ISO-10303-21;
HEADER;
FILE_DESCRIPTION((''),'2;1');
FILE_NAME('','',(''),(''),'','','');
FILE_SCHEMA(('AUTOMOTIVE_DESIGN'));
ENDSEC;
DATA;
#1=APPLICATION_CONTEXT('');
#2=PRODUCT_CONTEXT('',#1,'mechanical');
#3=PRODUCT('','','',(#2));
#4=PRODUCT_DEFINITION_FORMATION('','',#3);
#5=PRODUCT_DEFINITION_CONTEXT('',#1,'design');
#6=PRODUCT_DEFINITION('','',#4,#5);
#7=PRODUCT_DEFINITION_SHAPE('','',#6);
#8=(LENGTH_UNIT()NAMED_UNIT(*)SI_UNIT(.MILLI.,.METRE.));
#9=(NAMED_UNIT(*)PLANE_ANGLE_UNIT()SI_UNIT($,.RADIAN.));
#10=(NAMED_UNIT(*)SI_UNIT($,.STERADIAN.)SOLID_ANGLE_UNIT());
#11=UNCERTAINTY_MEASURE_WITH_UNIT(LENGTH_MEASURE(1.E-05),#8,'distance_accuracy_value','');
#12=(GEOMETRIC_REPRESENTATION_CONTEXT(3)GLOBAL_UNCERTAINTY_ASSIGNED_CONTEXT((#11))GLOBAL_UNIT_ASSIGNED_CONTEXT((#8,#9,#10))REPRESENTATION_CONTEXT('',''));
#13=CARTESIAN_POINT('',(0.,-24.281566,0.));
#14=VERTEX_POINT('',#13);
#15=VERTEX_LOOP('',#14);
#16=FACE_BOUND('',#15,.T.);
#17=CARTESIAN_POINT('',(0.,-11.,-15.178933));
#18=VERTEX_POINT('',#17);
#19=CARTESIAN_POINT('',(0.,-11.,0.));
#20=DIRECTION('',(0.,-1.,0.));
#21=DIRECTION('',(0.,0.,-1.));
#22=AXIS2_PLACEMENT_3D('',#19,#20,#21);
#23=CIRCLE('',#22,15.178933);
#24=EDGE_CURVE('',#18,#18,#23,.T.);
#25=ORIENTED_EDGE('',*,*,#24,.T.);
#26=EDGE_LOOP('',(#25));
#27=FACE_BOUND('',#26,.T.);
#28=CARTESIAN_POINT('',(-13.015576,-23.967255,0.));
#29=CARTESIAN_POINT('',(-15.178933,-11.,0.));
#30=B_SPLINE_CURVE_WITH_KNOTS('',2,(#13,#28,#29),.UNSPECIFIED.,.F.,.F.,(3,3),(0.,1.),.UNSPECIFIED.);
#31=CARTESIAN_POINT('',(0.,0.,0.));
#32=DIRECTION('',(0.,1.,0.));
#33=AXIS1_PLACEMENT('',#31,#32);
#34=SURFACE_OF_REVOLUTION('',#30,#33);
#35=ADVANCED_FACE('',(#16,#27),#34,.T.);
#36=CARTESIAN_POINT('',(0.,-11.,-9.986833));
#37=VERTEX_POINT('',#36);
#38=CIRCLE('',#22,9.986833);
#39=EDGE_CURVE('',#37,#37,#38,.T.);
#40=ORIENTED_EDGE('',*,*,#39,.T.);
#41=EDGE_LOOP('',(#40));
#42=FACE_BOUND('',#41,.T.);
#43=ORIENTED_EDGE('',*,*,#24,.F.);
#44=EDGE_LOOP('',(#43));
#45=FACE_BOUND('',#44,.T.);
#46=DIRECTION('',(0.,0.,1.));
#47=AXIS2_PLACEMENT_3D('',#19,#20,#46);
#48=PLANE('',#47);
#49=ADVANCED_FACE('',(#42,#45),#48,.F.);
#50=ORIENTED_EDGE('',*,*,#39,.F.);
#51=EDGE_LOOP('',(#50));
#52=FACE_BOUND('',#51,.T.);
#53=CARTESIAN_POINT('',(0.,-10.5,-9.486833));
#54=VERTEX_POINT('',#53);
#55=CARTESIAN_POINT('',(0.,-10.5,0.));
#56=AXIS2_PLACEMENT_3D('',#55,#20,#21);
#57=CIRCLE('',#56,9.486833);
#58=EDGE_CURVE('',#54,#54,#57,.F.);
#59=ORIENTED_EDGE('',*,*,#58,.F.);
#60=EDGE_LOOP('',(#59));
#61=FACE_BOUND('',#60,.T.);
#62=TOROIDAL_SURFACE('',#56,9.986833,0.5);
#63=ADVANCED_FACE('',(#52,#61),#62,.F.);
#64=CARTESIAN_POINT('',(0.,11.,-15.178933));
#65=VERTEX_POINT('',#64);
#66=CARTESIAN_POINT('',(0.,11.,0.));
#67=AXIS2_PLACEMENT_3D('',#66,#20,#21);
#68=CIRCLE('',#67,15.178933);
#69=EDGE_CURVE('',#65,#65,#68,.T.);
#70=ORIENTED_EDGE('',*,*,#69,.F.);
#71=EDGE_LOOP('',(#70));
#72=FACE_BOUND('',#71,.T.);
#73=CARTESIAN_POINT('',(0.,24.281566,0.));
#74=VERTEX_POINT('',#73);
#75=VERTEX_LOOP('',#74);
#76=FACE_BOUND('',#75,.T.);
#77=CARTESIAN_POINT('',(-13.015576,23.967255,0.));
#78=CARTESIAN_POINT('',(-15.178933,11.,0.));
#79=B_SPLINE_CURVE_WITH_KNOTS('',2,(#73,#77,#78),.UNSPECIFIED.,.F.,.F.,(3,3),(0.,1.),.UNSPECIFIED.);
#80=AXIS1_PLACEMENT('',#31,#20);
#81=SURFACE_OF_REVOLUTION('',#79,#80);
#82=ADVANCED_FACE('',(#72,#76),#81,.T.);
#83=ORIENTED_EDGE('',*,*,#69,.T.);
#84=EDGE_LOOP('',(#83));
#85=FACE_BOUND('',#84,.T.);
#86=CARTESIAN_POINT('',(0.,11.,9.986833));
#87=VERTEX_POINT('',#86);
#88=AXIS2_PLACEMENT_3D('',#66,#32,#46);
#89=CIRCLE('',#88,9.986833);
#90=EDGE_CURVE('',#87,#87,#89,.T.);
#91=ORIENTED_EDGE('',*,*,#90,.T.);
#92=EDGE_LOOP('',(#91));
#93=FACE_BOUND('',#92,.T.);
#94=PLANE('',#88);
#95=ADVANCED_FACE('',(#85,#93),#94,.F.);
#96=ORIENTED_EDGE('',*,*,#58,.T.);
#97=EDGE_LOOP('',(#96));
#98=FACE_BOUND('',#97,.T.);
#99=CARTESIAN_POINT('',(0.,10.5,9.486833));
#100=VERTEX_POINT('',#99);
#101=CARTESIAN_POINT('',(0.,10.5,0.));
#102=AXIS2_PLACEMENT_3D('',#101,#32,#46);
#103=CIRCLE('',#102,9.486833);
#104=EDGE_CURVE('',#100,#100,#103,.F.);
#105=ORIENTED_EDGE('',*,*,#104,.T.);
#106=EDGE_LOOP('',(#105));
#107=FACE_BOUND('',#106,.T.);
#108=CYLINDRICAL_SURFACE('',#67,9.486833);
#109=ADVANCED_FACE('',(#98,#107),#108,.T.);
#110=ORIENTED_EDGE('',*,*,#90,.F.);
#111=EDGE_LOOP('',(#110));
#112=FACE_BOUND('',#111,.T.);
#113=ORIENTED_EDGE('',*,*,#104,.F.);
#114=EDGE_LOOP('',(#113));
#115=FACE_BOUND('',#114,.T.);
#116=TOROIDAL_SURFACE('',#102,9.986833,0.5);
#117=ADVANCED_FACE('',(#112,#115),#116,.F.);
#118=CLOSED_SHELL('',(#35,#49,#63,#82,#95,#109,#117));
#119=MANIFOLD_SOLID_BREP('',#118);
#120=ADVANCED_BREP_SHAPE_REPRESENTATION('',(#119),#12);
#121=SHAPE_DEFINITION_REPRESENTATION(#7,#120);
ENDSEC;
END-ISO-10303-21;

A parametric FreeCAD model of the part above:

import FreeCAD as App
import Part
import Sketcher
from FreeCAD import Vector


def edges_at(feature, points):
    """Names of the edges that pass closest to the given points."""
    edges = feature.Shape.Edges
    near = lambda p: min(range(len(edges)), key=lambda i: edges[i].distToShape(Part.Vertex(*p))[0])
    return sorted({f"Edge{near(p) + 1}" for p in points})

doc = App.newDocument("Part")
params = doc.addObject("Spreadsheet::Sheet", "Params")
for row, (alias, value) in enumerate([
    ("pad1_length", "11 mm"),
    ("revolution_angle", "360 deg"),
    ("fillet_radius", "0.5 mm"),
], start=1):
    params.set(f"A{row}", alias)
    params.set(f"B{row}", "=" + value)
    params.setAlias(f"B{row}", alias)

body = doc.addObject("PartDesign::Body", "Body")

# Sketch on XZ plane
sketch1 = body.newObject("Sketcher::SketchObject", "Sketch")
sketch1.AttachmentSupport = (doc.getObject("XZ_Plane"), [""])
sketch1.MapMode = "FlatFace"
sketch1.addGeometry(Part.Circle(Vector(0, 0, 0), Vector(0, 0, 1), 9), False)
sketch1.addConstraint(Sketcher.Constraint("Coincident", 0, 3, -1, 1))
sketch1.addConstraint(Sketcher.Constraint("Diameter", 0, 18.973666))
pad1 = body.newObject("PartDesign::Pad", "Pad")
pad1.Profile = sketch1
pad1.setExpression("Length", "Params.pad1_length")
pad1.Reversed = True

# Sketch on XY plane
sketch2 = body.newObject("Sketcher::SketchObject", "Sketch001")
sketch2.AttachmentSupport = (doc.getObject("XY_Plane"), [""])
sketch2.MapMode = "FlatFace"
sketch2.addGeometry(Part.LineSegment(Vector(0, 11, 0), Vector(0, 24.281566, 0)), False)
sketch2.addGeometry(Part.BSplineCurve([Vector(0, 24.281566, 0), Vector(-13.015576, 23.967255, 0), Vector(-15.178933, 11, 0)], [3, 3], [0, 1], False, 2, [1, 1, 1], False), False)
sketch2.addGeometry(Part.LineSegment(Vector(-15.178933, 11, 0), Vector(0, 11, 0)), False)
sketch2.addConstraint(Sketcher.Constraint("Block", 1))
sketch2.addConstraint(Sketcher.Constraint("Coincident", 0, 2, 1, 1))
sketch2.addConstraint(Sketcher.Constraint("Coincident", 1, 2, 2, 1))
sketch2.addConstraint(Sketcher.Constraint("Coincident", 2, 2, 0, 1))
sketch2.addConstraint(Sketcher.Constraint("Vertical", 0))
sketch2.addConstraint(Sketcher.Constraint("Horizontal", 2))
revolution = body.newObject("PartDesign::Revolution", "Revolution")
revolution.Profile = sketch2
revolution.ReferenceAxis = (sketch2, ["V_Axis"])
revolution.setExpression("Angle", "Params.revolution_angle")
doc.recompute()

mirrored = body.newObject("PartDesign::Mirrored", "Mirrored")
mirrored.Originals = [pad1, revolution]
mirrored.MirrorPlane = (doc.getObject("XZ_Plane"), [""])
body.Tip = mirrored
doc.recompute()

fillet = body.newObject("PartDesign::Fillet", "Fillet")
fillet.Base = (mirrored, edges_at(mirrored, [(0, -11, -9.487), (0, 11, -9.487)]))
fillet.setExpression("Radius", "Params.fillet_radius")

doc.recompute()
